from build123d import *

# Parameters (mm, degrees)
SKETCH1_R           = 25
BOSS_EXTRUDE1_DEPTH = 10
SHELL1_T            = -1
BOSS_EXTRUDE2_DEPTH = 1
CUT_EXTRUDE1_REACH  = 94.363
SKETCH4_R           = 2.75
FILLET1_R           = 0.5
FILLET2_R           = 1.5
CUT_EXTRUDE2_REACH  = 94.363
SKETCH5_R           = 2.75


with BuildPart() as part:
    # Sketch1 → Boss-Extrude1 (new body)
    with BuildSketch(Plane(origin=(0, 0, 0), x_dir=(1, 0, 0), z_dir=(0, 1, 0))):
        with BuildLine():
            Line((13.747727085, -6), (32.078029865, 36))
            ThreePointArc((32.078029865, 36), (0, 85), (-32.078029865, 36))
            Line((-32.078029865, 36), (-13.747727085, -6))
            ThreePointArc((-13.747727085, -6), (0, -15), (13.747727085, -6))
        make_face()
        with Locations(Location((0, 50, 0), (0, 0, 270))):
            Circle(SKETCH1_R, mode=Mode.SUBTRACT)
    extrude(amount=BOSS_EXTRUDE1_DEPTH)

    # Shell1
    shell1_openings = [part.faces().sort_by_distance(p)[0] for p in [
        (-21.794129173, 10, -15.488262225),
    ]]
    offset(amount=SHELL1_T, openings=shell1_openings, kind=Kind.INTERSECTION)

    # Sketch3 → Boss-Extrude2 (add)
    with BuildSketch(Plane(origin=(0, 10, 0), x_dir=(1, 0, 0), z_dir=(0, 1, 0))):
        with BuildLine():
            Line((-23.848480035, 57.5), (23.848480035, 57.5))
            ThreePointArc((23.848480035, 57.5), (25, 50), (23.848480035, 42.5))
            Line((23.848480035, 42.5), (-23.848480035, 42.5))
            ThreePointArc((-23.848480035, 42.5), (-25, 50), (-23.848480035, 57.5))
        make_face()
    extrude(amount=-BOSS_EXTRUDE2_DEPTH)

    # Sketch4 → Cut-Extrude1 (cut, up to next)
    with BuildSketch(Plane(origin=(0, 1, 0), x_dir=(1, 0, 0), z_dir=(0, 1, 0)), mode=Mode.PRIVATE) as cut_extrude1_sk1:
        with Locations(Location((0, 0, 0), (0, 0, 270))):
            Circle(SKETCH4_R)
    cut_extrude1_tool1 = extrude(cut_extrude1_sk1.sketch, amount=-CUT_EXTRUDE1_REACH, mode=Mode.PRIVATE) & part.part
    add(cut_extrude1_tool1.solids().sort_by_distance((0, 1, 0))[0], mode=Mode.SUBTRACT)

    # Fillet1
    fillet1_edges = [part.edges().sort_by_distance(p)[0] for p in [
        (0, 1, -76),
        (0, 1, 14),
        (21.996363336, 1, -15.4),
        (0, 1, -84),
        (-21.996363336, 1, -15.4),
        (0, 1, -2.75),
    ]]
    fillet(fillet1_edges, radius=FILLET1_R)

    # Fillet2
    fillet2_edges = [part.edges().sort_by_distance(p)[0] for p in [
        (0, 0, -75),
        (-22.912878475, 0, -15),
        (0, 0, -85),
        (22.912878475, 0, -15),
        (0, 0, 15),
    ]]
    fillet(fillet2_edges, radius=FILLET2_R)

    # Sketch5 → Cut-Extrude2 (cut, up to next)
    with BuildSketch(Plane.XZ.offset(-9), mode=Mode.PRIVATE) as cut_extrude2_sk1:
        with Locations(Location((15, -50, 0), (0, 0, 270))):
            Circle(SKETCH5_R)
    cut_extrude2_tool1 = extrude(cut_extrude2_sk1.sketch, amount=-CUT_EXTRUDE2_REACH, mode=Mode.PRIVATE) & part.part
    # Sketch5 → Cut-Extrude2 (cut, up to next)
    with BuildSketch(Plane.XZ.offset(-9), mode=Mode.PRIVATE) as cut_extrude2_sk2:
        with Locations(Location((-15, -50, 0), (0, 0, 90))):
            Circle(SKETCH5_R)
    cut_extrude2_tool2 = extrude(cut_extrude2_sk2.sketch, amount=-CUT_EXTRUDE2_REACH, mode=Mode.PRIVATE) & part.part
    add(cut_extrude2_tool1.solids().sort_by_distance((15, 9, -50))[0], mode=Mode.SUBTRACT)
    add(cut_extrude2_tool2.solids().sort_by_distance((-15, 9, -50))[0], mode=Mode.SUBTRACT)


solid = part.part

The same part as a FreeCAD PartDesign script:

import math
import FreeCAD as App
import Part
import Sketcher

V = App.Vector


def edges_at(feature, points):
    """Names of the edges that pass closest to the given points."""
    edges = feature.Shape.Edges
    near = lambda p: min(range(len(edges)), key=lambda i: edges[i].distToShape(Part.Vertex(*p))[0])
    return sorted({f"Edge{near(p) + 1}" for p in points})


def faces_at(feature, points):
    """Names of the faces that lie closest to the given points."""
    faces = feature.Shape.Faces
    near = lambda p: min(range(len(faces)), key=lambda i: faces[i].distToShape(Part.Vertex(*p))[0])
    return sorted({f"Face{near(p) + 1}" for p in points})

doc = App.newDocument("Part")
body = doc.addObject("PartDesign::Body", "Body")

sketch1 = doc.addObject("Sketcher::SketchObject", "Sketch")
body.addObject(sketch1)
sketch1.AttachmentSupport = (doc.XZ_Plane, [""])
sketch1.MapMode = "FlatFace"
sketch1.addGeometry([
    Part.LineSegment(V(14, 6, 0), V(32, -36, 0)),
    Part.ArcOfCircle(Part.Circle(V(0, -50, 0), V(0, 0, 1), 35), math.radians(156), math.radians(384)),
    Part.LineSegment(V(-32, -36, 0), V(-14, 6, 0)),
    Part.ArcOfCircle(Part.Circle(V(0, 0, 0), V(0, 0, 1), 15), math.radians(24), math.radians(156)),
    Part.Circle(V(0, -50, 0), V(0, 0, 1), 25),
], False)
sketch1.addConstraint([
    Sketcher.Constraint("Tangent", 0, 2, 1, 2),
    Sketcher.Constraint("Tangent", 1, 1, 2, 1),
    Sketcher.Constraint("Tangent", 2, 2, 3, 2),
    Sketcher.Constraint("Tangent", 3, 1, 0, 1),
    Sketcher.Constraint("Coincident", 3, 3, -1, 1),
    Sketcher.Constraint("Coincident", 4, 3, 1, 3),
    Sketcher.Constraint("PointOnObject", 1, 3, -2),
    Sketcher.Constraint("Diameter", 4, 50.0),
    Sketcher.Constraint("Radius", 1, 35.0),
    Sketcher.Constraint("Radius", 3, 15.0),
    Sketcher.Constraint("DistanceY", 1, 3, -1, 1, 50.0),
])
pad1 = doc.addObject("PartDesign::Pad", "Pad")
body.addObject(pad1)
pad1.Profile = sketch1
pad1.Length = 10
pad1.Reversed = True
doc.recompute()

thickness = doc.addObject("PartDesign::Thickness", "Thickness")
body.addObject(thickness)
thickness.Base = (pad1, faces_at(pad1, [(-14, 10, -15)]))
thickness.Value = 1
thickness.Reversed = True
thickness.Join = "Intersection"

sketch2 = doc.addObject("Sketcher::SketchObject", "Sketch001")
body.addObject(sketch2)
sketch2.AttachmentSupport = (doc.XZ_Plane, [""])
sketch2.MapMode = "FlatFace"
sketch2.AttachmentOffset = App.Placement(V(0, 0, -10), App.Rotation())
sketch2.addGeometry([
    Part.LineSegment(V(24, -58, 0), V(-24, -58, 0)),
    Part.ArcOfCircle(Part.Circle(V(0, -50, 0), V(0, 0, 1), 25), math.radians(163), math.radians(197)),
    Part.LineSegment(V(-24, -42, 0), V(24, -42, 0)),
    Part.ArcOfCircle(Part.Circle(V(0, -50, 0), V(0, 0, 1), 25), math.radians(-17), math.radians(17)),
], False)
sketch2.addConstraint([
    Sketcher.Constraint("Coincident", 0, 2, 1, 2),
    Sketcher.Constraint("Coincident", 1, 1, 2, 1),
    Sketcher.Constraint("Coincident", 2, 2, 3, 2),
    Sketcher.Constraint("Coincident", 3, 1, 0, 1),
    Sketcher.Constraint("Horizontal", 0),
    Sketcher.Constraint("Horizontal", 2),
    Sketcher.Constraint("Coincident", 3, 3, 1, 3),
    Sketcher.Constraint("Equal", 1, 3),
    Sketcher.Constraint("PointOnObject", 1, 3, -2),
    Sketcher.Constraint("Vertical", 0, 2, 1, 1),
    Sketcher.Constraint("Radius", 1, 25.0),
    Sketcher.Constraint("DistanceY", 1, 3, -1, 1, 50.0),
    Sketcher.Constraint("DistanceY", 0, 2, 1, 1, 15.0),
])
pad2 = doc.addObject("PartDesign::Pad", "Pad001")
body.addObject(pad2)
pad2.Profile = sketch2
pad2.Length = 1

sketch3 = doc.addObject("Sketcher::SketchObject", "Sketch002")
body.addObject(sketch3)
sketch3.AttachmentSupport = (doc.XZ_Plane, [""])
sketch3.MapMode = "FlatFace"
sketch3.AttachmentOffset = App.Placement(V(0, 0, -1), App.Rotation())
sketch3.addGeometry(Part.Circle(V(0, 0, 0), V(0, 0, 1), 2.8), False)
sketch3.addConstraint([
    Sketcher.Constraint("Coincident", 0, 3, -1, 1),
    Sketcher.Constraint("Diameter", 0, 5.5),
])
pocket1 = doc.addObject("PartDesign::Pocket", "Pocket")
body.addObject(pocket1)
pocket1.Profile = sketch3
pocket1.Type = "UpToFirst"
pocket1.Reversed = True
doc.recompute()

fillet = doc.addObject("PartDesign::Fillet", "Fillet")
body.addObject(fillet)
fillet.Base = (pocket1, edges_at(pocket1, [
    (0, 1, -76),
    (0, 1, 14),
    (21.996, 1, -15.4),
    (0, 1, -84),
    (-21.996, 1, -15.4),
    (0, 1, -2.75),
]))
fillet.Radius = 0.5
doc.recompute()

fillet2 = doc.addObject("PartDesign::Fillet", "Fillet001")
body.addObject(fillet2)
fillet2.Base = (fillet, edges_at(fillet, [
    (0, 0, -75),
    (-22.913, 0, -15),
    (0, 0, -85),
    (22.913, 0, -15),
    (0, 0, 15),
]))
fillet2.Radius = 1.5

sketch4 = doc.addObject("Sketcher::SketchObject", "Sketch003")
body.addObject(sketch4)
sketch4.AttachmentSupport = (doc.XZ_Plane, [""])
sketch4.MapMode = "FlatFace"
sketch4.AttachmentOffset = App.Placement(V(0, 0, -9), App.Rotation())
sketch4.addGeometry(Part.Circle(V(15, -50, 0), V(0, 0, 1), 2.8), False)
sketch4.addConstraint([
    Sketcher.Constraint("Diameter", 0, 5.5),
    Sketcher.Constraint("DistanceX", -1, 1, 0, 3, 15.0),
    Sketcher.Constraint("DistanceY", 0, 3, -1, 1, 50.0),
])
pocket2 = doc.addObject("PartDesign::Pocket", "Pocket001")
body.addObject(pocket2)
pocket2.Profile = sketch4
pocket2.Type = "UpToFirst"

sketch5 = doc.addObject("Sketcher::SketchObject", "Sketch004")
body.addObject(sketch5)
sketch5.AttachmentSupport = (doc.XZ_Plane, [""])
sketch5.MapMode = "FlatFace"
sketch5.AttachmentOffset = App.Placement(V(0, 0, -9), App.Rotation())
sketch5.addGeometry(Part.Circle(V(-15, -50, 0), V(0, 0, 1), 2.8), False)
sketch5.addConstraint([
    Sketcher.Constraint("Diameter", 0, 5.5),
    Sketcher.Constraint("DistanceX", 0, 3, -1, 1, 15.0),
    Sketcher.Constraint("DistanceY", 0, 3, -1, 1, 50.0),
])
pocket3 = doc.addObject("PartDesign::Pocket", "Pocket002")
body.addObject(pocket3)
pocket3.Profile = sketch5
pocket3.Type = "UpToFirst"

doc.recompute()
